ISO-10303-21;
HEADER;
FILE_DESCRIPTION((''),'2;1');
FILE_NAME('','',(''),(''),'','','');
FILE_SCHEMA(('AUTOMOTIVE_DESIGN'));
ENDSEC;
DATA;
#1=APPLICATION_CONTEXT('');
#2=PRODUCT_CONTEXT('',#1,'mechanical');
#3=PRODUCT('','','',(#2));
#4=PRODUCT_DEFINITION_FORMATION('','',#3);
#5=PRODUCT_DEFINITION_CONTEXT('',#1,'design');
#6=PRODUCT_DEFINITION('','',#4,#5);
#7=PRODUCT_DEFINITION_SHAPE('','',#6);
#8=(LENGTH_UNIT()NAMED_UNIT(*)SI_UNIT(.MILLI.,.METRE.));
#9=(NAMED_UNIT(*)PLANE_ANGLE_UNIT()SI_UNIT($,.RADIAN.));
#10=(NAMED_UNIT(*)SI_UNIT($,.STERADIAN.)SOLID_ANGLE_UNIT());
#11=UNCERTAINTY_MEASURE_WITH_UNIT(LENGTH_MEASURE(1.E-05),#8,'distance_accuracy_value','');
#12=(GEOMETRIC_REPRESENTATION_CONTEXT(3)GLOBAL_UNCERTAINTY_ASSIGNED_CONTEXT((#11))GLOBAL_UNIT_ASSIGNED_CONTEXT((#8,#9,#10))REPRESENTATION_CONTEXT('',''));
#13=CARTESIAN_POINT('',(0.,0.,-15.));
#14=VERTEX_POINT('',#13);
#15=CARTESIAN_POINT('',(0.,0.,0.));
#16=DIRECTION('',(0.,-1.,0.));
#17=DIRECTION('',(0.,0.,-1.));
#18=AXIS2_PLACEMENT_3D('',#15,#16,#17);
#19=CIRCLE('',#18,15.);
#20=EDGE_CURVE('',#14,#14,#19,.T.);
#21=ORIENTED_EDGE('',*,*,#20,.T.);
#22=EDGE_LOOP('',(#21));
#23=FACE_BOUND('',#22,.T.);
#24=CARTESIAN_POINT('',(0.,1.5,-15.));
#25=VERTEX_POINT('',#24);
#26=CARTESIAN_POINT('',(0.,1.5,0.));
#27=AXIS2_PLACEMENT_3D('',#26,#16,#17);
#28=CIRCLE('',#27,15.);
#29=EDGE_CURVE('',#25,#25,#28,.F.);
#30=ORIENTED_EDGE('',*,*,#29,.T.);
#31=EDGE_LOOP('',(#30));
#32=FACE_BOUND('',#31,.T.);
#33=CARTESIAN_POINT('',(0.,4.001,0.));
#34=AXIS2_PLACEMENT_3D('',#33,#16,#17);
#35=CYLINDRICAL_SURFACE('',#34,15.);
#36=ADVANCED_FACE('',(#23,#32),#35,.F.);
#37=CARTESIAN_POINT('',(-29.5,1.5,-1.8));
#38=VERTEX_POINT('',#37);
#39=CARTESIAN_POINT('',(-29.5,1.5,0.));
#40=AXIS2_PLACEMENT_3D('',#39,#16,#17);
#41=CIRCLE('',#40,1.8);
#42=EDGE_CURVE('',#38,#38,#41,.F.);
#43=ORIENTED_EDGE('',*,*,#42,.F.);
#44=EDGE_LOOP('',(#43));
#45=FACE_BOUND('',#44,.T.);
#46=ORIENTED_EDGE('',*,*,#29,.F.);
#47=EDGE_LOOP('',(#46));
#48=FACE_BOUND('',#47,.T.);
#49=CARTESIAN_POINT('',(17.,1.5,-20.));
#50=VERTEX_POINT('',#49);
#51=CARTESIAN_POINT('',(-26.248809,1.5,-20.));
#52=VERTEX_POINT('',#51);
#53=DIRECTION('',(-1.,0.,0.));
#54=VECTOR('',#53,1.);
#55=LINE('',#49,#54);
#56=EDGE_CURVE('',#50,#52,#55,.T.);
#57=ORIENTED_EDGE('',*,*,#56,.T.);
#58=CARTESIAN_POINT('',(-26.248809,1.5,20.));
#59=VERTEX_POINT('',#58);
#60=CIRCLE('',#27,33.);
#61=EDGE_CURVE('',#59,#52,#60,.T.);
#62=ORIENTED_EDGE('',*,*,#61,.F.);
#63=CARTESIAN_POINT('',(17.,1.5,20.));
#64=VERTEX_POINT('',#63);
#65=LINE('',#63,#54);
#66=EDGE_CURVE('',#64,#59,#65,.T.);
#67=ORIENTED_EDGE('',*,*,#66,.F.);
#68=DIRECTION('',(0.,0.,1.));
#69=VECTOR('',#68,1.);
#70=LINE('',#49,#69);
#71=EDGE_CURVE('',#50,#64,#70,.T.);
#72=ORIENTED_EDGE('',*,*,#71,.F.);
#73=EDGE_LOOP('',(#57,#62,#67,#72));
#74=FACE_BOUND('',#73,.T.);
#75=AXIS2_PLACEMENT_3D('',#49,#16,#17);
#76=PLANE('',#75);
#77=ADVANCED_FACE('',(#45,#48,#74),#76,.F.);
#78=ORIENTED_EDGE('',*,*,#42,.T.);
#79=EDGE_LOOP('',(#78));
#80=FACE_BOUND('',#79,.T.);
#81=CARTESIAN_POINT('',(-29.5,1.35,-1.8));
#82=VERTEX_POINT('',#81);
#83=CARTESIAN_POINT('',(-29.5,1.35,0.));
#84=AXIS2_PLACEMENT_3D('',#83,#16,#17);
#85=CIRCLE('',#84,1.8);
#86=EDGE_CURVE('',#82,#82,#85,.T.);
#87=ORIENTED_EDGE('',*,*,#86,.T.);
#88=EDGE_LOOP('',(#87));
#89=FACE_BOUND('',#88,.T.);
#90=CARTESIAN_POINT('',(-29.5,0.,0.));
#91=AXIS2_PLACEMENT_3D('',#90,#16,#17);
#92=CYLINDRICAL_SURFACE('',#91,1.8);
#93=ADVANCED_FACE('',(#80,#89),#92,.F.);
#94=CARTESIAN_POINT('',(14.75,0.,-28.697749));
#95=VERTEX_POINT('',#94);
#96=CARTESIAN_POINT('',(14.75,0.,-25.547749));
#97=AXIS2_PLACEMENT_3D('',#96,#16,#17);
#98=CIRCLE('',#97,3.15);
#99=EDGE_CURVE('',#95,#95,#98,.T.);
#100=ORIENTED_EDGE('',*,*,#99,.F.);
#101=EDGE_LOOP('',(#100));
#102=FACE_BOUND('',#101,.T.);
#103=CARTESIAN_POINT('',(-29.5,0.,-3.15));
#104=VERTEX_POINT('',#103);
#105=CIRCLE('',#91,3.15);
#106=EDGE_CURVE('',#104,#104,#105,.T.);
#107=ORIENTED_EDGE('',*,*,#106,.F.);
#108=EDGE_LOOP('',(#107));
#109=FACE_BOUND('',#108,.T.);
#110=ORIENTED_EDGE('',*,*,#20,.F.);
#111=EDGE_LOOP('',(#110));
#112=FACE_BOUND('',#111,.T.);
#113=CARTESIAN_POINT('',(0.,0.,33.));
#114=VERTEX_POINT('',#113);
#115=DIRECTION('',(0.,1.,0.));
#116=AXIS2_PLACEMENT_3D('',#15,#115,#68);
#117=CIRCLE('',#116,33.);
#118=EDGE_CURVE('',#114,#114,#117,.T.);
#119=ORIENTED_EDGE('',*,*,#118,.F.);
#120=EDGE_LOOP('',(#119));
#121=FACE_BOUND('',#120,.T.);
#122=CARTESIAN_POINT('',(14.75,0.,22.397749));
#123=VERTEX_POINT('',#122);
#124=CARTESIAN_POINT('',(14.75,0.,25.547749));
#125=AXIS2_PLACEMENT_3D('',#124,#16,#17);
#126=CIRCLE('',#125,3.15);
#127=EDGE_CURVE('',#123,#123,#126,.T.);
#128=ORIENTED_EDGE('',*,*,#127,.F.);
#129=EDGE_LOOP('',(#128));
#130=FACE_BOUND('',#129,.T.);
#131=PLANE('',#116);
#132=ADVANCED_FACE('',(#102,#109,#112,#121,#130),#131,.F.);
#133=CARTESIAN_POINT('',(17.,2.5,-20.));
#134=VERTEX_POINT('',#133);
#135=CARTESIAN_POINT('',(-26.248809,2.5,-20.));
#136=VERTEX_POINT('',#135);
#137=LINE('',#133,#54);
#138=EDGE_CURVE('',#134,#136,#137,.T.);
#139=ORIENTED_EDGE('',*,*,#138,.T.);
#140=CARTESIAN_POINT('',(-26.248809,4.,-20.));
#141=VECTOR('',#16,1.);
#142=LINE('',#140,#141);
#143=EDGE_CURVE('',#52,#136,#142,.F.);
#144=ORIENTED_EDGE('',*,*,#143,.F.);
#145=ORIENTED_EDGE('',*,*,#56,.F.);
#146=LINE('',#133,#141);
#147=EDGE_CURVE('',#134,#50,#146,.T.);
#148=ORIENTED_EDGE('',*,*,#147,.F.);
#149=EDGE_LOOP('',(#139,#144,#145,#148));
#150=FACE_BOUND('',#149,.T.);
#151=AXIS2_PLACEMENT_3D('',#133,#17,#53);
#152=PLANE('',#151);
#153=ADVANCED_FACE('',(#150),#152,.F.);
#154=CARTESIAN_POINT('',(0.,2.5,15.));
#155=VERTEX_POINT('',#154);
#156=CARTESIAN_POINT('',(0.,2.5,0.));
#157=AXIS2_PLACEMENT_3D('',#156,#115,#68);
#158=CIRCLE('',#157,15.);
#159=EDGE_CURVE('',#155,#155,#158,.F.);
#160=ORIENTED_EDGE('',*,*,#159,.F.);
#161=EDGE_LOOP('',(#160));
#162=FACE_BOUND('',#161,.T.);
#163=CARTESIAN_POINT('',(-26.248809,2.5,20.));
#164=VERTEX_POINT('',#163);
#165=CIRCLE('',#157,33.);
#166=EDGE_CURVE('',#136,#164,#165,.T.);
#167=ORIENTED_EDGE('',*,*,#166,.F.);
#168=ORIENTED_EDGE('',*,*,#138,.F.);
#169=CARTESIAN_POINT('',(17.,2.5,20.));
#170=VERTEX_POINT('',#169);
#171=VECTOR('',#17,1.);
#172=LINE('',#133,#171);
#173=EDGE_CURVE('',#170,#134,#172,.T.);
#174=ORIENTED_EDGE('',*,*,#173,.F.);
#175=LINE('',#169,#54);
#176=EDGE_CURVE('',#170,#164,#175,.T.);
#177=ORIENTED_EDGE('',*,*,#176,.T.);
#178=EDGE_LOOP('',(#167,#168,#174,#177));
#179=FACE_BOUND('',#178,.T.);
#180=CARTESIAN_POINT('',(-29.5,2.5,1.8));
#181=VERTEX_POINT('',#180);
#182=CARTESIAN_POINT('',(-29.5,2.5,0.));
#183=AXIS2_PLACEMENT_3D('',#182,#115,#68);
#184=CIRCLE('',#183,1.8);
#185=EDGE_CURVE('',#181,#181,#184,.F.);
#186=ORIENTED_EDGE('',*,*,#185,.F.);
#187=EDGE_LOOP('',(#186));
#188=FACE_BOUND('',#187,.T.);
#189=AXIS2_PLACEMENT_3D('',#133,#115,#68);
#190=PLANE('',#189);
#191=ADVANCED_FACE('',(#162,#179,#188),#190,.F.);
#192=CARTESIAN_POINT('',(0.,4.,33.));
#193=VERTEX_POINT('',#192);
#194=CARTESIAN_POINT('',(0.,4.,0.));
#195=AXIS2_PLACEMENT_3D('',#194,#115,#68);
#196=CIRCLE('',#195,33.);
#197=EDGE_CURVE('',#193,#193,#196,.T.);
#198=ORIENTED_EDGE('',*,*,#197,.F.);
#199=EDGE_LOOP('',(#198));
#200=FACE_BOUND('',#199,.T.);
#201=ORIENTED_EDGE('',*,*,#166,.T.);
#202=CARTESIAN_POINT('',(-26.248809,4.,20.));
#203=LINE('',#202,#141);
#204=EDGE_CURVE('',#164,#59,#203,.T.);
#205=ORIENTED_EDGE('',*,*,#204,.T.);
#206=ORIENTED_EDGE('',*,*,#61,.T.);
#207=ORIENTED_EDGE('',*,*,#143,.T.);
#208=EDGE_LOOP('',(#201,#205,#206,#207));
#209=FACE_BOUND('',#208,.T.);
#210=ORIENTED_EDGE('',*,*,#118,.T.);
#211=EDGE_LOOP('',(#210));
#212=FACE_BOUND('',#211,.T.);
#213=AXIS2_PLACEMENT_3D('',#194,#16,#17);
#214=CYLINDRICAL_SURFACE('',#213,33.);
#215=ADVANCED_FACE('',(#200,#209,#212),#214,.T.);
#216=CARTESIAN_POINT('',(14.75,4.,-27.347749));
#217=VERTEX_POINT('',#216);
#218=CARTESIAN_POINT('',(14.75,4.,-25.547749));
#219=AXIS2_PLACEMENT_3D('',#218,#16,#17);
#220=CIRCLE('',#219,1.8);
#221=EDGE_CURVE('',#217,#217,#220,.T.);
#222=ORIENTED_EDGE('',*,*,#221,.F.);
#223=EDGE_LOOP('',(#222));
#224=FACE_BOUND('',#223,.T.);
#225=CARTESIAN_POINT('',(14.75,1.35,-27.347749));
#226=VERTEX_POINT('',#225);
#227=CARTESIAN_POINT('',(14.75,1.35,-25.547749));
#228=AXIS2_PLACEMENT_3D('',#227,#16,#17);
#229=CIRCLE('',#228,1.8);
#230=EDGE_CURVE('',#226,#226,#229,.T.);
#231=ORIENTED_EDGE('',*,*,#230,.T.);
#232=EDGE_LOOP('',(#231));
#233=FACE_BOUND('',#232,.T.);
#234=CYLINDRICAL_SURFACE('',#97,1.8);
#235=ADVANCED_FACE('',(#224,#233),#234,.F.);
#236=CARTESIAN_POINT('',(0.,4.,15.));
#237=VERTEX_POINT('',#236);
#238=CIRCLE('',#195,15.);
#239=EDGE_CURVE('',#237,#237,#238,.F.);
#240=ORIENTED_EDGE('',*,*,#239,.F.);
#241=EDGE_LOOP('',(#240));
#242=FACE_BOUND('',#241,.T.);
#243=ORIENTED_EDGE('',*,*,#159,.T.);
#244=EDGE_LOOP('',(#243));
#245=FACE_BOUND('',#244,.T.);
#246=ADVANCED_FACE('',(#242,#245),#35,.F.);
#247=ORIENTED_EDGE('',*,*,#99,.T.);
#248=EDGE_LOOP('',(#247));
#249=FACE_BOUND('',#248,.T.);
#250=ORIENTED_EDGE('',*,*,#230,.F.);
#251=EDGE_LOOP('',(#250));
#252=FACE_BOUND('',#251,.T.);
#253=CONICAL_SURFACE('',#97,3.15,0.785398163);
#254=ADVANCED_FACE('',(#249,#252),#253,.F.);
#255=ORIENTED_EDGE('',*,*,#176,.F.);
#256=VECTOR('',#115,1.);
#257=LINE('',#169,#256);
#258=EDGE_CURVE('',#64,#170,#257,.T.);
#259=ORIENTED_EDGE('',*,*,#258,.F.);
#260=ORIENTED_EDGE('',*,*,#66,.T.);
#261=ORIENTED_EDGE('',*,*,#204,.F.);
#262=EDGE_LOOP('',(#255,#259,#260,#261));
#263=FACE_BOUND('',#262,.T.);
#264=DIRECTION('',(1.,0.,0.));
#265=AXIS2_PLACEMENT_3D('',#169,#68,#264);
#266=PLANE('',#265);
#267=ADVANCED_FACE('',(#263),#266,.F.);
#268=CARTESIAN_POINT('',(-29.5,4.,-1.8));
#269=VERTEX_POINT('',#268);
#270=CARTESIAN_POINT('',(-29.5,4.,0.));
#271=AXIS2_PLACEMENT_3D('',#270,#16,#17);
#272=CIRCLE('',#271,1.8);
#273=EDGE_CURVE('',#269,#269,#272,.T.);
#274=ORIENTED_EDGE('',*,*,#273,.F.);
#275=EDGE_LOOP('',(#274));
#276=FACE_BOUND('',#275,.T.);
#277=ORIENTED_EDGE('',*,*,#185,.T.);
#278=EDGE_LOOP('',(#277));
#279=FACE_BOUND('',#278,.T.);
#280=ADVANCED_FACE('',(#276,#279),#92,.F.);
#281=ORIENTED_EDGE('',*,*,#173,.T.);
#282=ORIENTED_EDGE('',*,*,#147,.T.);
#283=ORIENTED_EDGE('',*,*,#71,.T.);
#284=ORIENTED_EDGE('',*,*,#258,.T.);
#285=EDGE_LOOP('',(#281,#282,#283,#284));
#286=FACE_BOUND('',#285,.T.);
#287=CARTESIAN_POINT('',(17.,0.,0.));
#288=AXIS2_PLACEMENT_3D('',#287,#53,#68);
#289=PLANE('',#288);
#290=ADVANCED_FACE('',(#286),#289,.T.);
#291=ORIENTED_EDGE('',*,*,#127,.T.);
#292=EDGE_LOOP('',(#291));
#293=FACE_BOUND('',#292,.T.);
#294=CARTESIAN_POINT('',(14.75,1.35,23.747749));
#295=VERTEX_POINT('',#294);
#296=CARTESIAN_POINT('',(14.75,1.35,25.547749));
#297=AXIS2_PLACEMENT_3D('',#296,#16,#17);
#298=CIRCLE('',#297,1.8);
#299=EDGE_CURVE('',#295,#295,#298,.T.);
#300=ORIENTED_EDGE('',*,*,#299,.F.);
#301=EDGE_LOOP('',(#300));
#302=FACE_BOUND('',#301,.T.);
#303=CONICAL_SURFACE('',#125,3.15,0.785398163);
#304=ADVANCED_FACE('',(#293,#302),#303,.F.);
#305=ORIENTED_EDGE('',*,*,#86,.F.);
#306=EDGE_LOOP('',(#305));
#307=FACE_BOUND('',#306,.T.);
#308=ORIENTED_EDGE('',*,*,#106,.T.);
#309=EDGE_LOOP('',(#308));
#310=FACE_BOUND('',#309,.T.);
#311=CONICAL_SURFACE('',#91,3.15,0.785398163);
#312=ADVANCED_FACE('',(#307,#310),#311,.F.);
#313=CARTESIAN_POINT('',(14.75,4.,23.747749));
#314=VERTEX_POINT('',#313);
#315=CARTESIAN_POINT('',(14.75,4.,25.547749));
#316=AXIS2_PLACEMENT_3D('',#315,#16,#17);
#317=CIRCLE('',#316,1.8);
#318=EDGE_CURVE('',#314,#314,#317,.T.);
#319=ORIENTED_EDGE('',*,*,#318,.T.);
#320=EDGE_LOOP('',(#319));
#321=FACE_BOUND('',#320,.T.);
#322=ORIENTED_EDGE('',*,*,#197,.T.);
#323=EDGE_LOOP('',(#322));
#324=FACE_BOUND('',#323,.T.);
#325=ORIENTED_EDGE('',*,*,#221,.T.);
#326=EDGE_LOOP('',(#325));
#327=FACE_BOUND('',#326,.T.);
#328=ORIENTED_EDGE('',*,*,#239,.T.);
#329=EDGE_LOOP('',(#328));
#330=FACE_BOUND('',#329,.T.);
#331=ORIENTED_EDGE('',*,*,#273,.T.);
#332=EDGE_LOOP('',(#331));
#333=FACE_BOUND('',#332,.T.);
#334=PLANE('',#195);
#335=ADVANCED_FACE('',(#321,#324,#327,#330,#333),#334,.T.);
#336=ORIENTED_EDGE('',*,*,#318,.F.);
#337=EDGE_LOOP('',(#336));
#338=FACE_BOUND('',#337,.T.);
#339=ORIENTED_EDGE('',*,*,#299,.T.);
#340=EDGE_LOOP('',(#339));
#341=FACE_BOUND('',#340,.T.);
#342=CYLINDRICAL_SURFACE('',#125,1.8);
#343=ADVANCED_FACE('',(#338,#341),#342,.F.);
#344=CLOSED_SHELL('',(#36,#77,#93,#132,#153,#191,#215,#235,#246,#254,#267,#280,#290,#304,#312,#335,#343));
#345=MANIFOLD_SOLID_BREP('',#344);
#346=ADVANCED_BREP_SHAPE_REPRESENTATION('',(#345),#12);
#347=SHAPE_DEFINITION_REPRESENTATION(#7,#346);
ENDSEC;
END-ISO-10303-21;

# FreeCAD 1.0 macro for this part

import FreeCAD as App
import Part
import Sketcher

V = App.Vector

doc = App.newDocument("Part")
body = doc.addObject("PartDesign::Body", "Body")

# Sketch on XZ plane
sketch1 = body.newObject("Sketcher::SketchObject", "Sketch")
sketch1.AttachmentSupport = (doc.getObject("XZ_Plane"), [""])
sketch1.MapMode = "FlatFace"
sketch1.addGeometry(Part.Circle(V(0, 0, 0), V(0, 0, 1), 33), False)
sketch1.addGeometry(Part.Circle(V(14.8, 25.5, 0), V(0, 0, 1), 1.5), False)
sketch1.addGeometry(Part.Circle(V(-29.5, 0, 0), V(0, 0, 1), 1.5), False)
sketch1.addGeometry(Part.Circle(V(14.8, -25.5, 0), V(0, 0, 1), 1.5), False)
sketch1.addConstraint(Sketcher.Constraint("Coincident", 0, 3, -1, 1))
sketch1.addConstraint(Sketcher.Constraint("Equal", 1, 2))
sketch1.addConstraint(Sketcher.Constraint("Equal", 2, 3))
sketch1.addConstraint(Sketcher.Constraint("Symmetric", 1, 3, 3, 3, -1))
sketch1.addConstraint(Sketcher.Constraint("PointOnObject", 2, 3, -1))
sketch1.addConstraint(Sketcher.Constraint("Diameter", 0, 66.0))
sketch1.addConstraint(Sketcher.Constraint("Diameter", 1, 3.0))
sketch1.addConstraint(Sketcher.Constraint("DistanceX", 2, 3, -1, 1, 29.5))
sketch1.addConstraint(Sketcher.Constraint("DistanceX", -1, 1, 1, 3, 14.75))
sketch1.addConstraint(Sketcher.Constraint("DistanceY", 3, 3, 1, 3, 51.095499))
pad1 = body.newObject("PartDesign::Pad", "Pad")
pad1.Profile = sketch1
pad1.Length = 4
pad1.Reversed = True

# Sketch on XZ plane
sketch2 = body.newObject("Sketcher::SketchObject", "Sketch001")
sketch2.AttachmentSupport = (doc.getObject("XZ_Plane"), [""])
sketch2.MapMode = "FlatFace"
sketch2.addGeometry(Part.Circle(V(14.8, 25.5, 0), V(0, 0, 1), 1.8), False)
sketch2.addGeometry(Part.Circle(V(-29.5, 0, 0), V(0, 0, 1), 1.8), False)
sketch2.addGeometry(Part.Circle(V(14.8, -25.5, 0), V(0, 0, 1), 1.8), False)
sketch2.addConstraint(Sketcher.Constraint("Equal", 0, 1))
sketch2.addConstraint(Sketcher.Constraint("Equal", 1, 2))
sketch2.addConstraint(Sketcher.Constraint("Symmetric", 0, 3, 2, 3, -1))
sketch2.addConstraint(Sketcher.Constraint("PointOnObject", 1, 3, -1))
sketch2.addConstraint(Sketcher.Constraint("Diameter", 0, 3.6))
sketch2.addConstraint(Sketcher.Constraint("DistanceX", 1, 3, -1, 1, 29.5))
sketch2.addConstraint(Sketcher.Constraint("DistanceX", -1, 1, 0, 3, 14.75))
sketch2.addConstraint(Sketcher.Constraint("DistanceY", 2, 3, 0, 3, 51.095499))
doc.recompute()
hole = body.newObject("PartDesign::Hole", "Hole")
hole.Profile = sketch2
hole.ThreadType = "None"
hole.Diameter = 3.6
hole.DepthType = "ThroughAll"
hole.HoleCutType = "Countersink"
hole.HoleCutDiameter = 6.3
hole.HoleCutCountersinkAngle = 90

# Sketch on XZ plane
sketch3 = body.newObject("Sketcher::SketchObject", "Sketch002")
sketch3.AttachmentSupport = (doc.getObject("XZ_Plane"), [""])
sketch3.MapMode = "FlatFace"
sketch3.addGeometry(Part.Circle(V(0, 0, 0), V(0, 0, 1), 15), False)
sketch3.addConstraint(Sketcher.Constraint("Coincident", 0, 3, -1, 1))
sketch3.addConstraint(Sketcher.Constraint("Diameter", 0, 30.0))
pocket1 = body.newObject("PartDesign::Pocket", "Pocket")
pocket1.Profile = sketch3
pocket1.Type = "UpToFirst"

# Sketch on YZ plane
sketch4 = body.newObject("Sketcher::SketchObject", "Sketch003")
sketch4.AttachmentSupport = (doc.getObject("YZ_Plane"), [""])
sketch4.MapMode = "FlatFace"
sketch4.AttachmentOffset = App.Placement(V(0, 0, -33), App.Rotation())
sketch4.addGeometry(Part.LineSegment(V(2.5, -20, 0), V(1.5, -20, 0)), False)
sketch4.addGeometry(Part.LineSegment(V(1.5, -20, 0), V(1.5, 20, 0)), False)
sketch4.addGeometry(Part.LineSegment(V(1.5, 20, 0), V(2.5, 20, 0)), False)
sketch4.addGeometry(Part.LineSegment(V(2.5, 20, 0), V(2.5, -20, 0)), False)
sketch4.addConstraint(Sketcher.Constraint("Coincident", 0, 2, 1, 1))
sketch4.addConstraint(Sketcher.Constraint("Coincident", 1, 2, 2, 1))
sketch4.addConstraint(Sketcher.Constraint("Coincident", 2, 2, 3, 1))
sketch4.addConstraint(Sketcher.Constraint("Coincident", 3, 2, 0, 1))
sketch4.addConstraint(Sketcher.Constraint("Horizontal", 0))
sketch4.addConstraint(Sketcher.Constraint("Vertical", 1))
sketch4.addConstraint(Sketcher.Constraint("Horizontal", 2))
sketch4.addConstraint(Sketcher.Constraint("Vertical", 3))
sketch4.addConstraint(Sketcher.Constraint("DistanceX", 0, 2, 0, 1, 1.0))
sketch4.addConstraint(Sketcher.Constraint("DistanceY", 1, 1, 1, 2, 40.0))
sketch4.addConstraint(Sketcher.Constraint("DistanceY", 0, 2, -1, 1, 20.0))
sketch4.addConstraint(Sketcher.Constraint("DistanceX", -1, 1, 0, 2, 1.5))
pocket2 = body.newObject("PartDesign::Pocket", "Pocket001")
pocket2.Profile = sketch4
pocket2.Length = 50
pocket2.Reversed = True

doc.recompute()
